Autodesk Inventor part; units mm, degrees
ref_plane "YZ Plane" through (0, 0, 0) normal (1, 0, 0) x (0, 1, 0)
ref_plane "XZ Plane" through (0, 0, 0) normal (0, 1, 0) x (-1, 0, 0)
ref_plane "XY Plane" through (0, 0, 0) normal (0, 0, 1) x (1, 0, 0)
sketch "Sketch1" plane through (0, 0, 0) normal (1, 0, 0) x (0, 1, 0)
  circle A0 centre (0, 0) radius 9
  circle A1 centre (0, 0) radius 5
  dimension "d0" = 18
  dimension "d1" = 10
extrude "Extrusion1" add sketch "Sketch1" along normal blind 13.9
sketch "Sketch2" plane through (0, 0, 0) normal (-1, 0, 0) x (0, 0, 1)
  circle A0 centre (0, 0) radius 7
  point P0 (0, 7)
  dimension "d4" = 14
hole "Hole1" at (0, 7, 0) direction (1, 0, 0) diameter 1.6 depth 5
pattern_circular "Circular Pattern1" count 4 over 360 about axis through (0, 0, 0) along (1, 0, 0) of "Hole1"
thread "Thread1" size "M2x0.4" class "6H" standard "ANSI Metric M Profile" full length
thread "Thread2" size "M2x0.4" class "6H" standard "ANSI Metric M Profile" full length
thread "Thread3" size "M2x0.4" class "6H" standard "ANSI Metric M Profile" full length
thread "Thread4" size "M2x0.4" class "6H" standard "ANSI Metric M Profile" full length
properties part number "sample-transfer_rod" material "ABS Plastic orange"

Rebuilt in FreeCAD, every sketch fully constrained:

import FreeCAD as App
import Part
import Sketcher

V = App.Vector

doc = App.newDocument("Part")
body = doc.addObject("PartDesign::Body", "Body")

# Sketch on YZ plane
sketch1 = body.newObject("Sketcher::SketchObject", "Sketch")
sketch1.AttachmentSupport = (doc.getObject("YZ_Plane"), [""])
sketch1.MapMode = "FlatFace"
sketch1.addGeometry([
    Part.Circle(V(0, 0, 0), V(0, 0, 1), 9),
    Part.Circle(V(0, 0, 0), V(0, 0, 1), 5),
], False)
sketch1.addConstraint([
    Sketcher.Constraint("Coincident", 0, 3, -1, 1),
    Sketcher.Constraint("Coincident", 1, 3, -1, 1),
    Sketcher.Constraint("Diameter", 0, 18.0),
    Sketcher.Constraint("Diameter", 1, 10.0),
])
pad1 = body.newObject("PartDesign::Pad", "Pad")
pad1.Profile = sketch1
pad1.Length = 13.9

# Sketch on YZ plane
sketch2 = body.newObject("Sketcher::SketchObject", "Sketch001")
sketch2.AttachmentSupport = (doc.getObject("YZ_Plane"), [""])
sketch2.MapMode = "FlatFace"
sketch2.addGeometry(Part.Circle(V(7, 0, 0), V(0, 0, 1), 0.8), False)
sketch2.addConstraint([
    Sketcher.Constraint("PointOnObject", 0, 3, -1),
    Sketcher.Constraint("Diameter", 0, 1.6),
    Sketcher.Constraint("DistanceX", -1, 1, 0, 3, 7.0),
])
doc.recompute()
hole = body.newObject("PartDesign::Hole", "Hole")
hole.Profile = sketch2
hole.ThreadType = "None"
hole.Diameter = 1.6
hole.DepthType = "Dimension"
hole.Depth = 5
hole.DrillPoint = "Flat"
hole.Reversed = True
doc.recompute()

polarpattern = body.newObject("PartDesign::PolarPattern", "PolarPattern")
polarpattern.Originals = [hole]
polarpattern.Axis = (doc.getObject("X_Axis"), [""])
polarpattern.Angle = 360
polarpattern.Occurrences = 4
body.Tip = polarpattern

doc.recompute()
